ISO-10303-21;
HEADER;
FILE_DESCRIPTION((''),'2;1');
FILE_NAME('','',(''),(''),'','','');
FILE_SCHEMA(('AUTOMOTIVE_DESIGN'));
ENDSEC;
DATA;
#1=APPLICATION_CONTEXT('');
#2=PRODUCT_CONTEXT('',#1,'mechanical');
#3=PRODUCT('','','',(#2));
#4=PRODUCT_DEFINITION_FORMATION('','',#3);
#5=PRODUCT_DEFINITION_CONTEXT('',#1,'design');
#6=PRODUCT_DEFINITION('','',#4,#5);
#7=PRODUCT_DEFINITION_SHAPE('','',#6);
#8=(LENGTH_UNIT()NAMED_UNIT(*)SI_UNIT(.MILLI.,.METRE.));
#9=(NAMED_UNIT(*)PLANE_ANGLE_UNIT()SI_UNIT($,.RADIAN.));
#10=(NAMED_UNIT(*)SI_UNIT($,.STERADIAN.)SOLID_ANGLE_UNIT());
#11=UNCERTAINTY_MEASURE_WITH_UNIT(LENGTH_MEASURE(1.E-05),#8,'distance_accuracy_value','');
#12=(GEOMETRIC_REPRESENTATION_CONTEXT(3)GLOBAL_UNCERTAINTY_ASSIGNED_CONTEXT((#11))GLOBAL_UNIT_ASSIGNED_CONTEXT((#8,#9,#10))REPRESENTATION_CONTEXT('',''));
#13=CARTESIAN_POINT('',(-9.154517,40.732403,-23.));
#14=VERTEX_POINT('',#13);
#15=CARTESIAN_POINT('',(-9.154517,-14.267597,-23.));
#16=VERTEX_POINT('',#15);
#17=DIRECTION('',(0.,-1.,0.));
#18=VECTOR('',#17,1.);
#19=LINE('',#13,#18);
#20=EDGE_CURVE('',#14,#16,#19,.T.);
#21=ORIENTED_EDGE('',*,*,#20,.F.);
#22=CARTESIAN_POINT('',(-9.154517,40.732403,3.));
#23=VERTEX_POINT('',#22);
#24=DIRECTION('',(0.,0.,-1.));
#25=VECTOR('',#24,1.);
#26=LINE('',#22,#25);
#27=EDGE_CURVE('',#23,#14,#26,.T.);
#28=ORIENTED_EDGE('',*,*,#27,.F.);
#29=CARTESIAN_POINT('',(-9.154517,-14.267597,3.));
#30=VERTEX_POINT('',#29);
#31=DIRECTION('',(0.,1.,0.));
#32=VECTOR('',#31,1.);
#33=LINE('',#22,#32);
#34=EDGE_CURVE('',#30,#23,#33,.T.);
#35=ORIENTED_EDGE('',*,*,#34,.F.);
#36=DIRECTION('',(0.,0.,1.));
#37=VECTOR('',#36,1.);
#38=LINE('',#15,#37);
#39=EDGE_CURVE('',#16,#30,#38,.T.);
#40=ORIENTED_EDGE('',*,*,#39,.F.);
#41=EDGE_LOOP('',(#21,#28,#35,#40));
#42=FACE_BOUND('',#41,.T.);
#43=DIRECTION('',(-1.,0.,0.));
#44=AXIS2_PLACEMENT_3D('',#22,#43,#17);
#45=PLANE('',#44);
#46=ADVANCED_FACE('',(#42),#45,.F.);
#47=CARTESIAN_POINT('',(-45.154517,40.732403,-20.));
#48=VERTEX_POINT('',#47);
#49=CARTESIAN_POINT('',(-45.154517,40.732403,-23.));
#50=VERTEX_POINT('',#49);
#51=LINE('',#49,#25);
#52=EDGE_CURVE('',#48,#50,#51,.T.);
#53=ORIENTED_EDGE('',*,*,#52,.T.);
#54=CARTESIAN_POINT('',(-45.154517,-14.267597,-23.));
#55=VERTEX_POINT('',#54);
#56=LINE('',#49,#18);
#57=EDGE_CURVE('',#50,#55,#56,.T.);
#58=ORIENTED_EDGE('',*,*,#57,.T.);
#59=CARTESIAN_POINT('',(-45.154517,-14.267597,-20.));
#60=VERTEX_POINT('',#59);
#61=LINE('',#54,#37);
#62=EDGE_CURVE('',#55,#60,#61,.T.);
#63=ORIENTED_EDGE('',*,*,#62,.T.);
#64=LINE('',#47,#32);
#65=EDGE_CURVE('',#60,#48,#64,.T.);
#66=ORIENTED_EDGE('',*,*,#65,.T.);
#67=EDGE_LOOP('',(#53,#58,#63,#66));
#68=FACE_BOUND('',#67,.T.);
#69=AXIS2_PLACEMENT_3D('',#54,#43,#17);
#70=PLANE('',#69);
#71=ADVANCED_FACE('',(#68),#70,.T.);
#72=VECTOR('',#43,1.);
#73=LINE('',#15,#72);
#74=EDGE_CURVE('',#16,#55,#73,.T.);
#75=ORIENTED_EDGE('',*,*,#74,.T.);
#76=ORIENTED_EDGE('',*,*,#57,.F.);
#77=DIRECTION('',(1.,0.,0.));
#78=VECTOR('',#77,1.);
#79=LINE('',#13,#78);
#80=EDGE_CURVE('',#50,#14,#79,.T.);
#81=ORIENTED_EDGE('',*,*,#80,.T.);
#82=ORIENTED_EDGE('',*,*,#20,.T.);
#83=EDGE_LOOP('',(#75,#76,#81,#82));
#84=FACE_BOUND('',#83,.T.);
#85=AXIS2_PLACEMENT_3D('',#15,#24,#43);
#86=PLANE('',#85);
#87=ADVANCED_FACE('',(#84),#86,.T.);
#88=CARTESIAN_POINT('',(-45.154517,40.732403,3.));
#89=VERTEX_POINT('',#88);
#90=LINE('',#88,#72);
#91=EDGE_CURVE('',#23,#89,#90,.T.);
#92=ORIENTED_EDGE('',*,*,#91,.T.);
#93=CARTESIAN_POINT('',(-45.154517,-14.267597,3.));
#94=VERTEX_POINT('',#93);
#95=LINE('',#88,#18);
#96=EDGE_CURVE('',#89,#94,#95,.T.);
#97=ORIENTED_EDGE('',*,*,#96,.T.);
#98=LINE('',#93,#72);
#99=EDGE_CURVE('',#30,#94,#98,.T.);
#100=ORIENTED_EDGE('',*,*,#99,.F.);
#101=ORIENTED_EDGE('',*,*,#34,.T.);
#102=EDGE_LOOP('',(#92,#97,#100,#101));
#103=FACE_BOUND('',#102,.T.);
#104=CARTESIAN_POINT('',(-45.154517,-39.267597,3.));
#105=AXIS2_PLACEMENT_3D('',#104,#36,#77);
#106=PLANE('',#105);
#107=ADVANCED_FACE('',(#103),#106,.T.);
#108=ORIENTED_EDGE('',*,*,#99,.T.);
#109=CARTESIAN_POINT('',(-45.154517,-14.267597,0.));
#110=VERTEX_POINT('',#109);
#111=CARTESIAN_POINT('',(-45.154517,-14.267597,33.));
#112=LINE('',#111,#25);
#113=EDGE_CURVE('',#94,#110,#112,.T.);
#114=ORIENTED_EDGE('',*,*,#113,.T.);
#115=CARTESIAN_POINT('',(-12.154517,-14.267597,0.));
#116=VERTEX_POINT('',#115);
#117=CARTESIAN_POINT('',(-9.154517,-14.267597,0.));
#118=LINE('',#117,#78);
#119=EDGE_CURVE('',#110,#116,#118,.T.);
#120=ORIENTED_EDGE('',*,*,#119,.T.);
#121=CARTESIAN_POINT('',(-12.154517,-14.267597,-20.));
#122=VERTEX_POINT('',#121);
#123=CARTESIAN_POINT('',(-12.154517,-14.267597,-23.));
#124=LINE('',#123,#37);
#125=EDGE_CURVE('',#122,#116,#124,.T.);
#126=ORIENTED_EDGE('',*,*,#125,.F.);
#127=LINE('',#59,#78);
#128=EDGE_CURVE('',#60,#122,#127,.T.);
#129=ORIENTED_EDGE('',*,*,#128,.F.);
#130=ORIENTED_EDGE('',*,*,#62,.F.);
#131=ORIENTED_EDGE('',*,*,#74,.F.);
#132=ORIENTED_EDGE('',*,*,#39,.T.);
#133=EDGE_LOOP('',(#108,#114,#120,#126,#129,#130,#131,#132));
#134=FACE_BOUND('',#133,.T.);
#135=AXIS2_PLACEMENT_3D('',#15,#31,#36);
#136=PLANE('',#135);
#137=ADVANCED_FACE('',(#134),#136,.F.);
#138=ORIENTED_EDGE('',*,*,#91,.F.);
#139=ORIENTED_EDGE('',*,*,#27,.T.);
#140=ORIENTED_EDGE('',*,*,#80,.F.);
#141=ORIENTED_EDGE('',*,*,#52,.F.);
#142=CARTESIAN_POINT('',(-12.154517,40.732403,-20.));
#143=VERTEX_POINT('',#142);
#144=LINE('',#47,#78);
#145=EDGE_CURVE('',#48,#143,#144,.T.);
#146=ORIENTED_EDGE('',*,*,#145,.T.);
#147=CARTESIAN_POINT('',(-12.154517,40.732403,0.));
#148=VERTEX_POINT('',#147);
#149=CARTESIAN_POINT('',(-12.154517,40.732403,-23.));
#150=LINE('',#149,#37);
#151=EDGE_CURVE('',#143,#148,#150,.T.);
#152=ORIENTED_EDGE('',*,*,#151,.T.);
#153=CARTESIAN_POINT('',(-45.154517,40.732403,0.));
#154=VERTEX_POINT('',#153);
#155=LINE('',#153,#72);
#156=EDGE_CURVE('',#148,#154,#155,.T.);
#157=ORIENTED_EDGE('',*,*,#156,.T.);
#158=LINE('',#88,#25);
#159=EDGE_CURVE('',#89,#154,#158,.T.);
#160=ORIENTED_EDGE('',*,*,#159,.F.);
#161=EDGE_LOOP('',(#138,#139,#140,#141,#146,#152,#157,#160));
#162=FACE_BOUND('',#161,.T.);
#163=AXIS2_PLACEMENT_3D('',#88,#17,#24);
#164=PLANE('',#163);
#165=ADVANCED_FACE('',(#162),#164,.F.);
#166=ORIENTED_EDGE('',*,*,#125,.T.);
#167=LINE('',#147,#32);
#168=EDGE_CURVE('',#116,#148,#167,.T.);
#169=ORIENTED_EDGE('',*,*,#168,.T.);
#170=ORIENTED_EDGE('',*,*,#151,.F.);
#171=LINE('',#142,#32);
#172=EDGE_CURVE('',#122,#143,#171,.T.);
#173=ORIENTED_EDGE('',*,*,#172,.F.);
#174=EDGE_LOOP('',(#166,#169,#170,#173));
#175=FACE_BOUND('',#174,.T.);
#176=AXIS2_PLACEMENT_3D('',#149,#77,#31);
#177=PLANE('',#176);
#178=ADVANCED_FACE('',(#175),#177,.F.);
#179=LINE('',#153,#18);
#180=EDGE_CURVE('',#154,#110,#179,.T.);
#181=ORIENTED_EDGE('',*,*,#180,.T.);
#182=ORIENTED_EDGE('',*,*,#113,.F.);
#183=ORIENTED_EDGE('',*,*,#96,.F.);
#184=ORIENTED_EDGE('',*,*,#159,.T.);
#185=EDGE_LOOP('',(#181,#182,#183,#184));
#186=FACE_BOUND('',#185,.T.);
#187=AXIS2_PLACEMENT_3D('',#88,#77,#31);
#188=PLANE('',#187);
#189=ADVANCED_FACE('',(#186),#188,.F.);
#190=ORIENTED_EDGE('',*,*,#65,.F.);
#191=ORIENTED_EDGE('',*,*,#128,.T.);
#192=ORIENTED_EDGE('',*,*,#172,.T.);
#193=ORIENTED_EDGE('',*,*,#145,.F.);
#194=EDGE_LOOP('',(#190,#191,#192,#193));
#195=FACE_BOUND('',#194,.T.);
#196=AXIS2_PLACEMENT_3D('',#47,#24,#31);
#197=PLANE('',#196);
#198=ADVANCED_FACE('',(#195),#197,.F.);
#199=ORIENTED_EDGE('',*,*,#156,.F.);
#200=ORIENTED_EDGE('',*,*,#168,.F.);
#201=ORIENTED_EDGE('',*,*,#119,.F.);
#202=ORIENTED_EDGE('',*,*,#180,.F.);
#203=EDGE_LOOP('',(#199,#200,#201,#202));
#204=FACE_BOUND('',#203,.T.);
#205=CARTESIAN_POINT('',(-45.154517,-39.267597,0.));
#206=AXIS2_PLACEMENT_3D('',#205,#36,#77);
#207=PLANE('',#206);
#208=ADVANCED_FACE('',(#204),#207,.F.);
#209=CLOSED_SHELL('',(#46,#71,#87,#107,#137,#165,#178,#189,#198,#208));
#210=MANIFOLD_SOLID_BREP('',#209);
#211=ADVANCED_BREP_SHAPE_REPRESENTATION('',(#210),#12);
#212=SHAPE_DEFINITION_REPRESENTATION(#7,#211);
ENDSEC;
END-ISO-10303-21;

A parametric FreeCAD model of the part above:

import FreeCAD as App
import Part
import Sketcher
from FreeCAD import Vector

doc = App.newDocument("Part")
body = doc.addObject("PartDesign::Body", "Body")

# Sketch on XY plane
sketch1 = body.newObject("Sketcher::SketchObject", "Sketch")
sketch1.AttachmentSupport = (doc.getObject("XY_Plane"), [""])
sketch1.MapMode = "FlatFace"
sketch1.addGeometry(Part.LineSegment(Vector(-45, 41, 0), Vector(-45, -39, 0)), False)
sketch1.addGeometry(Part.LineSegment(Vector(-45, -39, 0), Vector(-9, -39, 0)), False)
sketch1.addGeometry(Part.LineSegment(Vector(-9, -39, 0), Vector(-9, 41, 0)), False)
sketch1.addGeometry(Part.LineSegment(Vector(-9, 41, 0), Vector(-45, 41, 0)), False)
sketch1.addConstraint(Sketcher.Constraint("Coincident", 0, 2, 1, 1))
sketch1.addConstraint(Sketcher.Constraint("Coincident", 1, 2, 2, 1))
sketch1.addConstraint(Sketcher.Constraint("Coincident", 2, 2, 3, 1))
sketch1.addConstraint(Sketcher.Constraint("Coincident", 3, 2, 0, 1))
sketch1.addConstraint(Sketcher.Constraint("Vertical", 0))
sketch1.addConstraint(Sketcher.Constraint("Horizontal", 1))
sketch1.addConstraint(Sketcher.Constraint("Vertical", 2))
sketch1.addConstraint(Sketcher.Constraint("Horizontal", 3))
sketch1.addConstraint(Sketcher.Constraint("DistanceX", 1, 1, 1, 2, 36.0))
sketch1.addConstraint(Sketcher.Constraint("DistanceY", 0, 2, 0, 1, 80.0))
sketch1.addConstraint(Sketcher.Constraint("DistanceX", 0, 2, -1, 1, 45.154517))
sketch1.addConstraint(Sketcher.Constraint("DistanceY", 0, 2, -1, 1, 39.267597))
pad1 = body.newObject("PartDesign::Pad", "Pad")
pad1.Profile = sketch1
pad1.Length = 3

# Sketch on XY plane
sketch2 = body.newObject("Sketcher::SketchObject", "Sketch001")
sketch2.AttachmentSupport = (doc.getObject("XY_Plane"), [""])
sketch2.MapMode = "FlatFace"
sketch2.addGeometry(Part.LineSegment(Vector(-9.2, 40.7, 0), Vector(-9.2, -14.3, 0)), False)
sketch2.addGeometry(Part.LineSegment(Vector(-9.2, -14.3, 0), Vector(-12.2, -14.3, 0)), False)
sketch2.addGeometry(Part.LineSegment(Vector(-12.2, -14.3, 0), Vector(-12.2, 40.7, 0)), False)
sketch2.addGeometry(Part.LineSegment(Vector(-12.2, 40.7, 0), Vector(-9.2, 40.7, 0)), False)
sketch2.addConstraint(Sketcher.Constraint("Coincident", 0, 2, 1, 1))
sketch2.addConstraint(Sketcher.Constraint("Coincident", 1, 2, 2, 1))
sketch2.addConstraint(Sketcher.Constraint("Coincident", 2, 2, 3, 1))
sketch2.addConstraint(Sketcher.Constraint("Coincident", 3, 2, 0, 1))
sketch2.addConstraint(Sketcher.Constraint("Vertical", 0))
sketch2.addConstraint(Sketcher.Constraint("Horizontal", 1))
sketch2.addConstraint(Sketcher.Constraint("Vertical", 2))
sketch2.addConstraint(Sketcher.Constraint("Horizontal", 3))
sketch2.addConstraint(Sketcher.Constraint("DistanceX", 1, 2, 1, 1, 3.0))
sketch2.addConstraint(Sketcher.Constraint("DistanceY", 0, 2, 0, 1, 55.0))
sketch2.addConstraint(Sketcher.Constraint("DistanceX", 0, 2, -1, 1, 9.154517))
sketch2.addConstraint(Sketcher.Constraint("DistanceY", 0, 2, -1, 1, 14.267597))
pad2 = body.newObject("PartDesign::Pad", "Pad001")
pad2.Profile = sketch2
pad2.Length = 23
pad2.Reversed = True

# Sketch on YZ plane
sketch3 = body.newObject("Sketcher::SketchObject", "Sketch002")
sketch3.AttachmentSupport = (doc.getObject("YZ_Plane"), [""])
sketch3.MapMode = "FlatFace"
sketch3.AttachmentOffset = App.Placement(Vector(0, 0, -12.154517), App.Rotation())
sketch3.addGeometry(Part.LineSegment(Vector(40.7, -23, 0), Vector(-14.3, -23, 0)), False)
sketch3.addGeometry(Part.LineSegment(Vector(-14.3, -23, 0), Vector(-14.3, -20, 0)), False)
sketch3.addGeometry(Part.LineSegment(Vector(-14.3, -20, 0), Vector(40.7, -20, 0)), False)
sketch3.addGeometry(Part.LineSegment(Vector(40.7, -20, 0), Vector(40.7, -23, 0)), False)
sketch3.addConstraint(Sketcher.Constraint("Coincident", 0, 2, 1, 1))
sketch3.addConstraint(Sketcher.Constraint("Coincident", 1, 2, 2, 1))
sketch3.addConstraint(Sketcher.Constraint("Coincident", 2, 2, 3, 1))
sketch3.addConstraint(Sketcher.Constraint("Coincident", 3, 2, 0, 1))
sketch3.addConstraint(Sketcher.Constraint("Horizontal", 0))
sketch3.addConstraint(Sketcher.Constraint("Vertical", 1))
sketch3.addConstraint(Sketcher.Constraint("Horizontal", 2))
sketch3.addConstraint(Sketcher.Constraint("Vertical", 3))
sketch3.addConstraint(Sketcher.Constraint("DistanceX", 0, 2, 0, 1, 55.0))
sketch3.addConstraint(Sketcher.Constraint("DistanceY", 1, 1, 1, 2, 3.0))
sketch3.addConstraint(Sketcher.Constraint("DistanceY", 0, 2, -1, 1, 23.0))
sketch3.addConstraint(Sketcher.Constraint("DistanceX", 0, 2, -1, 1, 14.267597))
pad3 = body.newObject("PartDesign::Pad", "Pad002")
pad3.Profile = sketch3
pad3.Length = 33
pad3.Reversed = True

# Sketch on XY plane
sketch4 = body.newObject("Sketcher::SketchObject", "Sketch003")
sketch4.AttachmentSupport = (doc.getObject("XY_Plane"), [""])
sketch4.MapMode = "FlatFace"
sketch4.addGeometry(Part.LineSegment(Vector(-9, -14, 0), Vector(-9, -39, 0)), False)
sketch4.addGeometry(Part.LineSegment(Vector(-9, -39, 0), Vector(-45, -39, 0)), False)
sketch4.addGeometry(Part.LineSegment(Vector(-45, -39, 0), Vector(-45, -14, 0)), False)
sketch4.addGeometry(Part.LineSegment(Vector(-45, -14, 0), Vector(-9, -14, 0)), False)
sketch4.addConstraint(Sketcher.Constraint("Coincident", 0, 2, 1, 1))
sketch4.addConstraint(Sketcher.Constraint("Coincident", 1, 2, 2, 1))
sketch4.addConstraint(Sketcher.Constraint("Coincident", 2, 2, 3, 1))
sketch4.addConstraint(Sketcher.Constraint("Coincident", 3, 2, 0, 1))
sketch4.addConstraint(Sketcher.Constraint("Vertical", 0))
sketch4.addConstraint(Sketcher.Constraint("Horizontal", 1))
sketch4.addConstraint(Sketcher.Constraint("Vertical", 2))
sketch4.addConstraint(Sketcher.Constraint("Horizontal", 3))
sketch4.addConstraint(Sketcher.Constraint("DistanceX", 1, 2, 1, 1, 36.0))
sketch4.addConstraint(Sketcher.Constraint("DistanceY", 0, 2, 0, 1, 25.0))
sketch4.addConstraint(Sketcher.Constraint("DistanceX", 0, 2, -1, 1, 9.154517))
sketch4.addConstraint(Sketcher.Constraint("DistanceY", 0, 2, -1, 1, 39.267597))
pocket1 = body.newObject("PartDesign::Pocket", "Pocket")
pocket1.Profile = sketch4
pocket1.Length = 33
pocket1.Reversed = True

doc.recompute()
